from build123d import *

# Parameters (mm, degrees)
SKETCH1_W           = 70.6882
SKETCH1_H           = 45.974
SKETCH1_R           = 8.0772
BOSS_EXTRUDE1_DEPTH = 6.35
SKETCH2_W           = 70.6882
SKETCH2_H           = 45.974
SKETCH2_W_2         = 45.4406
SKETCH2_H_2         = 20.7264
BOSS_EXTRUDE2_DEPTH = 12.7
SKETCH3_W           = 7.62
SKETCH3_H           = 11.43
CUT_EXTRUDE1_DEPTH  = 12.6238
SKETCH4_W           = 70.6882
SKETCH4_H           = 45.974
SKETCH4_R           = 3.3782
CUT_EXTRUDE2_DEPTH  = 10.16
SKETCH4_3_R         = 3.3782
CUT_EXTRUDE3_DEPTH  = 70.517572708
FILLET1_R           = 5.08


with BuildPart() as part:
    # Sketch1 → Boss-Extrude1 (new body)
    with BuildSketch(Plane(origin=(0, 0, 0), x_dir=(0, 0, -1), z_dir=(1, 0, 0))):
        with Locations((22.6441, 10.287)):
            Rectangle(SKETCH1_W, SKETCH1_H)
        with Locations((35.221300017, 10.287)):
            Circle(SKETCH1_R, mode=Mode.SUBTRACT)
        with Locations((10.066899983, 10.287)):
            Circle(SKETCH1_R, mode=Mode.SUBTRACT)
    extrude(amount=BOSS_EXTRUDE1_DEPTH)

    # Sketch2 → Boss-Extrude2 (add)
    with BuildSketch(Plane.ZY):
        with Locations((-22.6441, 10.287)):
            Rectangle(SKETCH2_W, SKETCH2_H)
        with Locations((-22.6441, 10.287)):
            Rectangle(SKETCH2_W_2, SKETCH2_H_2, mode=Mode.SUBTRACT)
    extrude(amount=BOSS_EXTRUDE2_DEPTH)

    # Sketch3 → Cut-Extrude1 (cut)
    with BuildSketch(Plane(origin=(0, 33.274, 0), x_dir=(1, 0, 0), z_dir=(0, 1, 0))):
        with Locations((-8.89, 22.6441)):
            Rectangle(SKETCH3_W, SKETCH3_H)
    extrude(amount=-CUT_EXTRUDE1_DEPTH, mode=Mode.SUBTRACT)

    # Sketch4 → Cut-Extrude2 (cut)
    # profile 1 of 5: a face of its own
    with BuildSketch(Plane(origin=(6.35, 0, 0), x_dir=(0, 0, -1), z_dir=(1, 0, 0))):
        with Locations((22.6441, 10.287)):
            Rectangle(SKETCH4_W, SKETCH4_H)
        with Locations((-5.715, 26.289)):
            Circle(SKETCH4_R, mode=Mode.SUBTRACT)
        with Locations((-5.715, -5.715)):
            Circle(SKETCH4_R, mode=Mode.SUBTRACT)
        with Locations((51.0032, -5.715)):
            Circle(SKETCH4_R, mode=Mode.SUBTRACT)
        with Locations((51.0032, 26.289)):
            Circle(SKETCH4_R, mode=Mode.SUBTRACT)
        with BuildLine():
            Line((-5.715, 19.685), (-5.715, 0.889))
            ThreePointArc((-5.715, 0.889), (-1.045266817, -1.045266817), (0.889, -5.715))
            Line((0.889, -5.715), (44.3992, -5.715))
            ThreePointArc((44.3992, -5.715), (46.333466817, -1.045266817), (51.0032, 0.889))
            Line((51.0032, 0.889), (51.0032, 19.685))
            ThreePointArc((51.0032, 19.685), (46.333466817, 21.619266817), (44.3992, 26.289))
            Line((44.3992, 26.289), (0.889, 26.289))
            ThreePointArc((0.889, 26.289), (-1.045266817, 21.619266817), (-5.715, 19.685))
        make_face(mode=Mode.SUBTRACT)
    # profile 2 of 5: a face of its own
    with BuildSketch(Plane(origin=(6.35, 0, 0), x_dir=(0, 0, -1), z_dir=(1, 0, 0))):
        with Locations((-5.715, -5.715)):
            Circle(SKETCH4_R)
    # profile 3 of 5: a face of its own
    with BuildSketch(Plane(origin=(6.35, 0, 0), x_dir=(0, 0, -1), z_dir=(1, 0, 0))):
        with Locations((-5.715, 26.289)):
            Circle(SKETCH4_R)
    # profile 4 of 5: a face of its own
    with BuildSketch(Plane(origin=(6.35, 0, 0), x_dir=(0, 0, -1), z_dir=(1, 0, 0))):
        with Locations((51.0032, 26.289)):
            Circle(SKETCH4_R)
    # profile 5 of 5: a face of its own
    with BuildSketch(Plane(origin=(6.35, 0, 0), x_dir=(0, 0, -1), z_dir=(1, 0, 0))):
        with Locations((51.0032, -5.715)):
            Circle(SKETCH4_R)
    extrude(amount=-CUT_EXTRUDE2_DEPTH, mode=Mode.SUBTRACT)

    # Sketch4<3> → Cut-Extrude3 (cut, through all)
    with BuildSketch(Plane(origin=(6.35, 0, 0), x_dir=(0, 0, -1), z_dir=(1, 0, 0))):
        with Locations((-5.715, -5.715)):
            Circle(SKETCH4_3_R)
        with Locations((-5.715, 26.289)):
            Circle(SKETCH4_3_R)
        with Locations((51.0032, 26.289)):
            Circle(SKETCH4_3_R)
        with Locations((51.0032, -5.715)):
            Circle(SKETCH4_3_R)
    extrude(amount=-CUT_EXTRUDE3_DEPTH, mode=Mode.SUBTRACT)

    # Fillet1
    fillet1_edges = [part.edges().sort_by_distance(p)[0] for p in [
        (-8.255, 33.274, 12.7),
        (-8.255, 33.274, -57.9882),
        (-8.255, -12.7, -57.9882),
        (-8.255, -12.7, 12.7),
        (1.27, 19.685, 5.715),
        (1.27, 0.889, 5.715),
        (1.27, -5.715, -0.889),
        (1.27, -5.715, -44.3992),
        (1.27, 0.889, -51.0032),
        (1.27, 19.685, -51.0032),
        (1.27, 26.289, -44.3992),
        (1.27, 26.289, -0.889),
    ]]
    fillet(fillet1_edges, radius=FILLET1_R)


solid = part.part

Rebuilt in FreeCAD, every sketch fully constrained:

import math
import FreeCAD as App
import Part
import Sketcher
Q = App.Units.Quantity


def edges_at(feature, points):
    """Names of the edges that pass closest to the given points."""
    edges = feature.Shape.Edges
    near = lambda p: min(range(len(edges)), key=lambda i: edges[i].distToShape(Part.Vertex(*p))[0])
    return sorted({f"Edge{near(p) + 1}" for p in points})


def add_polygon(sketch, points):
    """Adds a closed chain of lines whose ends are joined by coincident constraints."""
    first, n = sketch.GeometryCount, len(points)
    for a, b in zip(points, points[1:] + points[:1]):
        sketch.addGeometry(Part.LineSegment(App.Vector(*a, 0), App.Vector(*b, 0)), False)
    for i in range(n):
        sketch.addConstraint(Sketcher.Constraint("Coincident", first + i, 2, first + (i + 1) % n, 1))

doc = App.newDocument("Part")
body = doc.addObject("PartDesign::Body", "Body")

sketch1 = body.newObject("Sketcher::SketchObject", "Sketch")
sketch1.AttachmentSupport = (doc.getObject("YZ_Plane"), [""])
sketch1.MapMode = "FlatFace"
add_polygon(sketch1, [(33, 13), (-13, 13), (-13, -58), (33, -58)])
sketch1.addGeometry(Part.Circle(App.Vector(10, -10, 0), App.Vector(0, 0, 1), 8), False)
sketch1.addGeometry(Part.Circle(App.Vector(10, -35, 0), App.Vector(0, 0, 1), 8), False)
sketch1.addConstraint([
    Sketcher.Constraint("Horizontal", 0),
    Sketcher.Constraint("Vertical", 1),
    Sketcher.Constraint("Horizontal", 2),
    Sketcher.Constraint("Vertical", 3),
    Sketcher.Constraint("Equal", 4, 5),
    Sketcher.Constraint("Vertical", 4, 3, 5, 3),
    Sketcher.Constraint("Diameter", 4, Q("0.636 in")),
    Sketcher.Constraint("DistanceX", 0, 2, 0, 1, Q("1.81 in")),
    Sketcher.Constraint("DistanceX", 0, 2, -1, 1, Q("0.5 in")),
    Sketcher.Constraint("DistanceY", -1, 1, 0, 2, Q("0.5 in")),
    Sketcher.Constraint("DistanceY", 1, 2, 1, 1, Q("2.783 in")),
    Sketcher.Constraint("DistanceX", -1, 1, 4, 3, Q("0.405 in")),
    Sketcher.Constraint("DistanceY", 4, 3, -1, 1, 10.0669),
    Sketcher.Constraint("DistanceY", 5, 3, -1, 1, 35.2213),
])
pad1 = body.newObject("PartDesign::Pad", "Pad")
pad1.Profile = sketch1
pad1.Length = Q("0.25 in")

sketch2 = body.newObject("Sketcher::SketchObject", "Sketch001")
sketch2.AttachmentSupport = (doc.getObject("YZ_Plane"), [""])
sketch2.MapMode = "FlatFace"
add_polygon(sketch2, [(33, -58), (-13, -58), (-13, 13), (33, 13)])
add_polygon(sketch2, [(0, 0), (0, -45), (21, -45), (21, 0)])
sketch2.addConstraint([
    Sketcher.Constraint("Horizontal", 0),
    Sketcher.Constraint("Vertical", 1),
    Sketcher.Constraint("Horizontal", 2),
    Sketcher.Constraint("Vertical", 3),
    Sketcher.Constraint("Vertical", 4),
    Sketcher.Constraint("Horizontal", 5),
    Sketcher.Constraint("Vertical", 6),
    Sketcher.Constraint("Horizontal", 7),
    Sketcher.Constraint("DistanceX", 0, 2, 0, 1, Q("1.81 in")),
    Sketcher.Constraint("DistanceX", 0, 2, -1, 1, Q("0.5 in")),
    Sketcher.Constraint("DistanceY", -1, 1, 1, 2, Q("0.5 in")),
    Sketcher.Constraint("DistanceX", 5, 1, 5, 2, Q("0.816 in")),
    Sketcher.Constraint("DistanceY", 1, 1, 1, 2, Q("2.783 in")),
    Sketcher.Constraint("DistanceY", 4, 2, 4, 1, Q("1.789 in")),
    Sketcher.Constraint("DistanceX", 4, 2, -1, 1, Q("0.003 in")),
    Sketcher.Constraint("DistanceY", 4, 2, -1, 1, Q("1.786 in")),
])
pad2 = body.newObject("PartDesign::Pad", "Pad001")
pad2.Profile = sketch2
pad2.Length = Q("0.5 in")
pad2.Reversed = True

sketch3 = body.newObject("Sketcher::SketchObject", "Sketch002")
sketch3.AttachmentSupport = (doc.getObject("XZ_Plane"), [""])
sketch3.MapMode = "FlatFace"
sketch3.AttachmentOffset = App.Placement(App.Vector(0, 0, -1.31 * 25.4), App.Rotation())
add_polygon(sketch3, [(-13, -28), (-13, -17), (-5, -17), (-5, -28)])
sketch3.addConstraint([
    Sketcher.Constraint("Vertical", 0),
    Sketcher.Constraint("Horizontal", 1),
    Sketcher.Constraint("Vertical", 2),
    Sketcher.Constraint("Horizontal", 3),
    Sketcher.Constraint("DistanceX", 1, 1, 1, 2, Q("0.3 in")),
    Sketcher.Constraint("DistanceY", 0, 1, 0, 2, Q("0.45 in")),
    Sketcher.Constraint("DistanceX", 0, 2, -1, 1, Q("0.5 in")),
    Sketcher.Constraint("DistanceY", 0, 2, -1, 1, Q("0.6665 in")),
])
pocket1 = body.newObject("PartDesign::Pocket", "Pocket")
pocket1.Profile = sketch3
pocket1.Length = Q("0.497 in")
pocket1.Reversed = True

sketch4 = body.newObject("Sketcher::SketchObject", "Sketch003")
sketch4.AttachmentSupport = (doc.getObject("YZ_Plane"), [""])
sketch4.MapMode = "FlatFace"
sketch4.AttachmentOffset = App.Placement(App.Vector(0, 0, 0.25 * 25.4), App.Rotation())
add_polygon(sketch4, [(33, 13), (-13, 13), (-13, -58), (33, -58)])
sketch4.addGeometry(Part.LineSegment(App.Vector(1, 6, 0), App.Vector(20, 6, 0)), False)
sketch4.addGeometry(Part.ArcOfCircle(Part.Circle(App.Vector(26, 6, 0), App.Vector(0, 0, 1), 7), math.radians(180), math.radians(270)), False)
sketch4.addGeometry(Part.LineSegment(App.Vector(26, -1, 0), App.Vector(26, -44, 0)), False)
sketch4.addGeometry(Part.ArcOfCircle(Part.Circle(App.Vector(26, -51, 0), App.Vector(0, 0, 1), 7), math.radians(90), math.radians(180)), False)
sketch4.addGeometry(Part.LineSegment(App.Vector(20, -51, 0), App.Vector(1, -51, 0)), False)
sketch4.addGeometry(Part.ArcOfCircle(Part.Circle(App.Vector(-6, -51, 0), App.Vector(0, 0, 1), 7), math.radians(0), math.radians(90)), False)
sketch4.addGeometry(Part.LineSegment(App.Vector(-6, -44, 0), App.Vector(-6, -1, 0)), False)
sketch4.addGeometry(Part.ArcOfCircle(Part.Circle(App.Vector(-6, 6, 0), App.Vector(0, 0, 1), 7), math.radians(-90), math.radians(0)), False)
sketch4.addConstraint([
    Sketcher.Constraint("Coincident", 4, 2, 5, 1),
    Sketcher.Constraint("Coincident", 5, 2, 6, 1),
    Sketcher.Constraint("Coincident", 6, 2, 7, 1),
    Sketcher.Constraint("Coincident", 7, 2, 8, 1),
    Sketcher.Constraint("Coincident", 8, 2, 9, 1),
    Sketcher.Constraint("Coincident", 9, 2, 10, 1),
    Sketcher.Constraint("Coincident", 10, 2, 11, 1),
    Sketcher.Constraint("Coincident", 11, 2, 4, 1),
    Sketcher.Constraint("Horizontal", 0),
    Sketcher.Constraint("Vertical", 1),
    Sketcher.Constraint("Horizontal", 2),
    Sketcher.Constraint("Vertical", 3),
    Sketcher.Constraint("Horizontal", 4),
    Sketcher.Constraint("Vertical", 6),
    Sketcher.Constraint("Horizontal", 8),
    Sketcher.Constraint("Vertical", 10),
    Sketcher.Constraint("Equal", 5, 7),
    Sketcher.Constraint("Equal", 7, 9),
    Sketcher.Constraint("Equal", 9, 11),
    Sketcher.Constraint("Horizontal", 7, 3, 9, 3),
    Sketcher.Constraint("Horizontal", 5, 3, 11, 3),
    Sketcher.Constraint("Horizontal", 11, 3, 4, 2),
    Sketcher.Constraint("Horizontal", 9, 3, 7, 2),
    Sketcher.Constraint("Vertical", 5, 3, 7, 3),
    Sketcher.Constraint("Vertical", 9, 3, 11, 3),
    Sketcher.Constraint("Vertical", 7, 3, 5, 2),
    Sketcher.Constraint("Vertical", 11, 3, 9, 2),
    Sketcher.Constraint("Radius", 5, Q("0.26 in")),
    Sketcher.Constraint("DistanceX", 11, 3, 4, 2, Q("1 in")),
    Sketcher.Constraint("DistanceX", 0, 2, 0, 1, Q("1.81 in")),
    Sketcher.Constraint("DistanceX", 0, 2, -1, 1, Q("0.5 in")),
    Sketcher.Constraint("DistanceY", -1, 1, 0, 2, Q("0.5 in")),
    Sketcher.Constraint("DistanceY", 1, 2, 1, 1, Q("2.783 in")),
    Sketcher.Constraint("DistanceY", 6, 2, 6, 1, Q("1.713 in")),
    Sketcher.Constraint("DistanceX", -1, 1, 5, 3, Q("1.035 in")),
    Sketcher.Constraint("DistanceY", -1, 1, 5, 3, Q("0.225 in")),
])
pocket2 = body.newObject("PartDesign::Pocket", "Pocket001")
pocket2.Profile = sketch4
pocket2.Length = Q("0.4 in")

sketch5 = body.newObject("Sketcher::SketchObject", "Sketch004")
sketch5.AttachmentSupport = (doc.getObject("YZ_Plane"), [""])
sketch5.MapMode = "FlatFace"
sketch5.AttachmentOffset = App.Placement(App.Vector(0, 0, 0.25 * 25.4), App.Rotation())
sketch5.addGeometry([
    Part.Circle(App.Vector(-5.7, 5.7, 0), App.Vector(0, 0, 1), 3.4),
    Part.Circle(App.Vector(26.3, 5.7, 0), App.Vector(0, 0, 1), 3.4),
    Part.Circle(App.Vector(26.3, -51, 0), App.Vector(0, 0, 1), 3.4),
    Part.Circle(App.Vector(-5.7, -51, 0), App.Vector(0, 0, 1), 3.4),
], False)
sketch5.addConstraint([
    Sketcher.Constraint("Equal", 0, 1),
    Sketcher.Constraint("Equal", 1, 2),
    Sketcher.Constraint("Equal", 2, 3),
    Sketcher.Constraint("Horizontal", 0, 3, 1, 3),
    Sketcher.Constraint("Horizontal", 2, 3, 3, 3),
    Sketcher.Constraint("Vertical", 1, 3, 2, 3),
    Sketcher.Constraint("Vertical", 0, 3, 3, 3),
    Sketcher.Constraint("Diameter", 0, Q("0.266 in")),
    Sketcher.Constraint("DistanceX", 0, 3, 1, 3, Q("1.26 in")),
    Sketcher.Constraint("DistanceX", 0, 3, -1, 1, Q("0.225 in")),
    Sketcher.Constraint("DistanceY", -1, 1, 0, 3, Q("0.225 in")),
    Sketcher.Constraint("DistanceY", 2, 3, -1, 1, Q("2.008 in")),
])
pocket3 = body.newObject("PartDesign::Pocket", "Pocket002")
pocket3.Profile = sketch5
pocket3.Type = "ThroughAll"
doc.recompute()

fillet = body.newObject("PartDesign::Fillet", "Fillet")
fillet.Base = (pocket3, edges_at(pocket3, [
    (-8.255, 33.274, 12.7),
    (-8.255, 33.274, -57.988),
    (-8.255, -12.7, -57.988),
    (-8.255, -12.7, 12.7),
    (1.27, 19.685, 5.715),
    (1.27, 0.889, 5.715),
    (1.27, -5.715, -0.889),
    (1.27, -5.715, -44.399),
    (1.27, 0.889, -51.003),
    (1.27, 19.685, -51.003),
    (1.27, 26.289, -44.399),
    (1.27, 26.289, -0.889),
]))
fillet.Radius = Q("0.2 in")

doc.recompute()
